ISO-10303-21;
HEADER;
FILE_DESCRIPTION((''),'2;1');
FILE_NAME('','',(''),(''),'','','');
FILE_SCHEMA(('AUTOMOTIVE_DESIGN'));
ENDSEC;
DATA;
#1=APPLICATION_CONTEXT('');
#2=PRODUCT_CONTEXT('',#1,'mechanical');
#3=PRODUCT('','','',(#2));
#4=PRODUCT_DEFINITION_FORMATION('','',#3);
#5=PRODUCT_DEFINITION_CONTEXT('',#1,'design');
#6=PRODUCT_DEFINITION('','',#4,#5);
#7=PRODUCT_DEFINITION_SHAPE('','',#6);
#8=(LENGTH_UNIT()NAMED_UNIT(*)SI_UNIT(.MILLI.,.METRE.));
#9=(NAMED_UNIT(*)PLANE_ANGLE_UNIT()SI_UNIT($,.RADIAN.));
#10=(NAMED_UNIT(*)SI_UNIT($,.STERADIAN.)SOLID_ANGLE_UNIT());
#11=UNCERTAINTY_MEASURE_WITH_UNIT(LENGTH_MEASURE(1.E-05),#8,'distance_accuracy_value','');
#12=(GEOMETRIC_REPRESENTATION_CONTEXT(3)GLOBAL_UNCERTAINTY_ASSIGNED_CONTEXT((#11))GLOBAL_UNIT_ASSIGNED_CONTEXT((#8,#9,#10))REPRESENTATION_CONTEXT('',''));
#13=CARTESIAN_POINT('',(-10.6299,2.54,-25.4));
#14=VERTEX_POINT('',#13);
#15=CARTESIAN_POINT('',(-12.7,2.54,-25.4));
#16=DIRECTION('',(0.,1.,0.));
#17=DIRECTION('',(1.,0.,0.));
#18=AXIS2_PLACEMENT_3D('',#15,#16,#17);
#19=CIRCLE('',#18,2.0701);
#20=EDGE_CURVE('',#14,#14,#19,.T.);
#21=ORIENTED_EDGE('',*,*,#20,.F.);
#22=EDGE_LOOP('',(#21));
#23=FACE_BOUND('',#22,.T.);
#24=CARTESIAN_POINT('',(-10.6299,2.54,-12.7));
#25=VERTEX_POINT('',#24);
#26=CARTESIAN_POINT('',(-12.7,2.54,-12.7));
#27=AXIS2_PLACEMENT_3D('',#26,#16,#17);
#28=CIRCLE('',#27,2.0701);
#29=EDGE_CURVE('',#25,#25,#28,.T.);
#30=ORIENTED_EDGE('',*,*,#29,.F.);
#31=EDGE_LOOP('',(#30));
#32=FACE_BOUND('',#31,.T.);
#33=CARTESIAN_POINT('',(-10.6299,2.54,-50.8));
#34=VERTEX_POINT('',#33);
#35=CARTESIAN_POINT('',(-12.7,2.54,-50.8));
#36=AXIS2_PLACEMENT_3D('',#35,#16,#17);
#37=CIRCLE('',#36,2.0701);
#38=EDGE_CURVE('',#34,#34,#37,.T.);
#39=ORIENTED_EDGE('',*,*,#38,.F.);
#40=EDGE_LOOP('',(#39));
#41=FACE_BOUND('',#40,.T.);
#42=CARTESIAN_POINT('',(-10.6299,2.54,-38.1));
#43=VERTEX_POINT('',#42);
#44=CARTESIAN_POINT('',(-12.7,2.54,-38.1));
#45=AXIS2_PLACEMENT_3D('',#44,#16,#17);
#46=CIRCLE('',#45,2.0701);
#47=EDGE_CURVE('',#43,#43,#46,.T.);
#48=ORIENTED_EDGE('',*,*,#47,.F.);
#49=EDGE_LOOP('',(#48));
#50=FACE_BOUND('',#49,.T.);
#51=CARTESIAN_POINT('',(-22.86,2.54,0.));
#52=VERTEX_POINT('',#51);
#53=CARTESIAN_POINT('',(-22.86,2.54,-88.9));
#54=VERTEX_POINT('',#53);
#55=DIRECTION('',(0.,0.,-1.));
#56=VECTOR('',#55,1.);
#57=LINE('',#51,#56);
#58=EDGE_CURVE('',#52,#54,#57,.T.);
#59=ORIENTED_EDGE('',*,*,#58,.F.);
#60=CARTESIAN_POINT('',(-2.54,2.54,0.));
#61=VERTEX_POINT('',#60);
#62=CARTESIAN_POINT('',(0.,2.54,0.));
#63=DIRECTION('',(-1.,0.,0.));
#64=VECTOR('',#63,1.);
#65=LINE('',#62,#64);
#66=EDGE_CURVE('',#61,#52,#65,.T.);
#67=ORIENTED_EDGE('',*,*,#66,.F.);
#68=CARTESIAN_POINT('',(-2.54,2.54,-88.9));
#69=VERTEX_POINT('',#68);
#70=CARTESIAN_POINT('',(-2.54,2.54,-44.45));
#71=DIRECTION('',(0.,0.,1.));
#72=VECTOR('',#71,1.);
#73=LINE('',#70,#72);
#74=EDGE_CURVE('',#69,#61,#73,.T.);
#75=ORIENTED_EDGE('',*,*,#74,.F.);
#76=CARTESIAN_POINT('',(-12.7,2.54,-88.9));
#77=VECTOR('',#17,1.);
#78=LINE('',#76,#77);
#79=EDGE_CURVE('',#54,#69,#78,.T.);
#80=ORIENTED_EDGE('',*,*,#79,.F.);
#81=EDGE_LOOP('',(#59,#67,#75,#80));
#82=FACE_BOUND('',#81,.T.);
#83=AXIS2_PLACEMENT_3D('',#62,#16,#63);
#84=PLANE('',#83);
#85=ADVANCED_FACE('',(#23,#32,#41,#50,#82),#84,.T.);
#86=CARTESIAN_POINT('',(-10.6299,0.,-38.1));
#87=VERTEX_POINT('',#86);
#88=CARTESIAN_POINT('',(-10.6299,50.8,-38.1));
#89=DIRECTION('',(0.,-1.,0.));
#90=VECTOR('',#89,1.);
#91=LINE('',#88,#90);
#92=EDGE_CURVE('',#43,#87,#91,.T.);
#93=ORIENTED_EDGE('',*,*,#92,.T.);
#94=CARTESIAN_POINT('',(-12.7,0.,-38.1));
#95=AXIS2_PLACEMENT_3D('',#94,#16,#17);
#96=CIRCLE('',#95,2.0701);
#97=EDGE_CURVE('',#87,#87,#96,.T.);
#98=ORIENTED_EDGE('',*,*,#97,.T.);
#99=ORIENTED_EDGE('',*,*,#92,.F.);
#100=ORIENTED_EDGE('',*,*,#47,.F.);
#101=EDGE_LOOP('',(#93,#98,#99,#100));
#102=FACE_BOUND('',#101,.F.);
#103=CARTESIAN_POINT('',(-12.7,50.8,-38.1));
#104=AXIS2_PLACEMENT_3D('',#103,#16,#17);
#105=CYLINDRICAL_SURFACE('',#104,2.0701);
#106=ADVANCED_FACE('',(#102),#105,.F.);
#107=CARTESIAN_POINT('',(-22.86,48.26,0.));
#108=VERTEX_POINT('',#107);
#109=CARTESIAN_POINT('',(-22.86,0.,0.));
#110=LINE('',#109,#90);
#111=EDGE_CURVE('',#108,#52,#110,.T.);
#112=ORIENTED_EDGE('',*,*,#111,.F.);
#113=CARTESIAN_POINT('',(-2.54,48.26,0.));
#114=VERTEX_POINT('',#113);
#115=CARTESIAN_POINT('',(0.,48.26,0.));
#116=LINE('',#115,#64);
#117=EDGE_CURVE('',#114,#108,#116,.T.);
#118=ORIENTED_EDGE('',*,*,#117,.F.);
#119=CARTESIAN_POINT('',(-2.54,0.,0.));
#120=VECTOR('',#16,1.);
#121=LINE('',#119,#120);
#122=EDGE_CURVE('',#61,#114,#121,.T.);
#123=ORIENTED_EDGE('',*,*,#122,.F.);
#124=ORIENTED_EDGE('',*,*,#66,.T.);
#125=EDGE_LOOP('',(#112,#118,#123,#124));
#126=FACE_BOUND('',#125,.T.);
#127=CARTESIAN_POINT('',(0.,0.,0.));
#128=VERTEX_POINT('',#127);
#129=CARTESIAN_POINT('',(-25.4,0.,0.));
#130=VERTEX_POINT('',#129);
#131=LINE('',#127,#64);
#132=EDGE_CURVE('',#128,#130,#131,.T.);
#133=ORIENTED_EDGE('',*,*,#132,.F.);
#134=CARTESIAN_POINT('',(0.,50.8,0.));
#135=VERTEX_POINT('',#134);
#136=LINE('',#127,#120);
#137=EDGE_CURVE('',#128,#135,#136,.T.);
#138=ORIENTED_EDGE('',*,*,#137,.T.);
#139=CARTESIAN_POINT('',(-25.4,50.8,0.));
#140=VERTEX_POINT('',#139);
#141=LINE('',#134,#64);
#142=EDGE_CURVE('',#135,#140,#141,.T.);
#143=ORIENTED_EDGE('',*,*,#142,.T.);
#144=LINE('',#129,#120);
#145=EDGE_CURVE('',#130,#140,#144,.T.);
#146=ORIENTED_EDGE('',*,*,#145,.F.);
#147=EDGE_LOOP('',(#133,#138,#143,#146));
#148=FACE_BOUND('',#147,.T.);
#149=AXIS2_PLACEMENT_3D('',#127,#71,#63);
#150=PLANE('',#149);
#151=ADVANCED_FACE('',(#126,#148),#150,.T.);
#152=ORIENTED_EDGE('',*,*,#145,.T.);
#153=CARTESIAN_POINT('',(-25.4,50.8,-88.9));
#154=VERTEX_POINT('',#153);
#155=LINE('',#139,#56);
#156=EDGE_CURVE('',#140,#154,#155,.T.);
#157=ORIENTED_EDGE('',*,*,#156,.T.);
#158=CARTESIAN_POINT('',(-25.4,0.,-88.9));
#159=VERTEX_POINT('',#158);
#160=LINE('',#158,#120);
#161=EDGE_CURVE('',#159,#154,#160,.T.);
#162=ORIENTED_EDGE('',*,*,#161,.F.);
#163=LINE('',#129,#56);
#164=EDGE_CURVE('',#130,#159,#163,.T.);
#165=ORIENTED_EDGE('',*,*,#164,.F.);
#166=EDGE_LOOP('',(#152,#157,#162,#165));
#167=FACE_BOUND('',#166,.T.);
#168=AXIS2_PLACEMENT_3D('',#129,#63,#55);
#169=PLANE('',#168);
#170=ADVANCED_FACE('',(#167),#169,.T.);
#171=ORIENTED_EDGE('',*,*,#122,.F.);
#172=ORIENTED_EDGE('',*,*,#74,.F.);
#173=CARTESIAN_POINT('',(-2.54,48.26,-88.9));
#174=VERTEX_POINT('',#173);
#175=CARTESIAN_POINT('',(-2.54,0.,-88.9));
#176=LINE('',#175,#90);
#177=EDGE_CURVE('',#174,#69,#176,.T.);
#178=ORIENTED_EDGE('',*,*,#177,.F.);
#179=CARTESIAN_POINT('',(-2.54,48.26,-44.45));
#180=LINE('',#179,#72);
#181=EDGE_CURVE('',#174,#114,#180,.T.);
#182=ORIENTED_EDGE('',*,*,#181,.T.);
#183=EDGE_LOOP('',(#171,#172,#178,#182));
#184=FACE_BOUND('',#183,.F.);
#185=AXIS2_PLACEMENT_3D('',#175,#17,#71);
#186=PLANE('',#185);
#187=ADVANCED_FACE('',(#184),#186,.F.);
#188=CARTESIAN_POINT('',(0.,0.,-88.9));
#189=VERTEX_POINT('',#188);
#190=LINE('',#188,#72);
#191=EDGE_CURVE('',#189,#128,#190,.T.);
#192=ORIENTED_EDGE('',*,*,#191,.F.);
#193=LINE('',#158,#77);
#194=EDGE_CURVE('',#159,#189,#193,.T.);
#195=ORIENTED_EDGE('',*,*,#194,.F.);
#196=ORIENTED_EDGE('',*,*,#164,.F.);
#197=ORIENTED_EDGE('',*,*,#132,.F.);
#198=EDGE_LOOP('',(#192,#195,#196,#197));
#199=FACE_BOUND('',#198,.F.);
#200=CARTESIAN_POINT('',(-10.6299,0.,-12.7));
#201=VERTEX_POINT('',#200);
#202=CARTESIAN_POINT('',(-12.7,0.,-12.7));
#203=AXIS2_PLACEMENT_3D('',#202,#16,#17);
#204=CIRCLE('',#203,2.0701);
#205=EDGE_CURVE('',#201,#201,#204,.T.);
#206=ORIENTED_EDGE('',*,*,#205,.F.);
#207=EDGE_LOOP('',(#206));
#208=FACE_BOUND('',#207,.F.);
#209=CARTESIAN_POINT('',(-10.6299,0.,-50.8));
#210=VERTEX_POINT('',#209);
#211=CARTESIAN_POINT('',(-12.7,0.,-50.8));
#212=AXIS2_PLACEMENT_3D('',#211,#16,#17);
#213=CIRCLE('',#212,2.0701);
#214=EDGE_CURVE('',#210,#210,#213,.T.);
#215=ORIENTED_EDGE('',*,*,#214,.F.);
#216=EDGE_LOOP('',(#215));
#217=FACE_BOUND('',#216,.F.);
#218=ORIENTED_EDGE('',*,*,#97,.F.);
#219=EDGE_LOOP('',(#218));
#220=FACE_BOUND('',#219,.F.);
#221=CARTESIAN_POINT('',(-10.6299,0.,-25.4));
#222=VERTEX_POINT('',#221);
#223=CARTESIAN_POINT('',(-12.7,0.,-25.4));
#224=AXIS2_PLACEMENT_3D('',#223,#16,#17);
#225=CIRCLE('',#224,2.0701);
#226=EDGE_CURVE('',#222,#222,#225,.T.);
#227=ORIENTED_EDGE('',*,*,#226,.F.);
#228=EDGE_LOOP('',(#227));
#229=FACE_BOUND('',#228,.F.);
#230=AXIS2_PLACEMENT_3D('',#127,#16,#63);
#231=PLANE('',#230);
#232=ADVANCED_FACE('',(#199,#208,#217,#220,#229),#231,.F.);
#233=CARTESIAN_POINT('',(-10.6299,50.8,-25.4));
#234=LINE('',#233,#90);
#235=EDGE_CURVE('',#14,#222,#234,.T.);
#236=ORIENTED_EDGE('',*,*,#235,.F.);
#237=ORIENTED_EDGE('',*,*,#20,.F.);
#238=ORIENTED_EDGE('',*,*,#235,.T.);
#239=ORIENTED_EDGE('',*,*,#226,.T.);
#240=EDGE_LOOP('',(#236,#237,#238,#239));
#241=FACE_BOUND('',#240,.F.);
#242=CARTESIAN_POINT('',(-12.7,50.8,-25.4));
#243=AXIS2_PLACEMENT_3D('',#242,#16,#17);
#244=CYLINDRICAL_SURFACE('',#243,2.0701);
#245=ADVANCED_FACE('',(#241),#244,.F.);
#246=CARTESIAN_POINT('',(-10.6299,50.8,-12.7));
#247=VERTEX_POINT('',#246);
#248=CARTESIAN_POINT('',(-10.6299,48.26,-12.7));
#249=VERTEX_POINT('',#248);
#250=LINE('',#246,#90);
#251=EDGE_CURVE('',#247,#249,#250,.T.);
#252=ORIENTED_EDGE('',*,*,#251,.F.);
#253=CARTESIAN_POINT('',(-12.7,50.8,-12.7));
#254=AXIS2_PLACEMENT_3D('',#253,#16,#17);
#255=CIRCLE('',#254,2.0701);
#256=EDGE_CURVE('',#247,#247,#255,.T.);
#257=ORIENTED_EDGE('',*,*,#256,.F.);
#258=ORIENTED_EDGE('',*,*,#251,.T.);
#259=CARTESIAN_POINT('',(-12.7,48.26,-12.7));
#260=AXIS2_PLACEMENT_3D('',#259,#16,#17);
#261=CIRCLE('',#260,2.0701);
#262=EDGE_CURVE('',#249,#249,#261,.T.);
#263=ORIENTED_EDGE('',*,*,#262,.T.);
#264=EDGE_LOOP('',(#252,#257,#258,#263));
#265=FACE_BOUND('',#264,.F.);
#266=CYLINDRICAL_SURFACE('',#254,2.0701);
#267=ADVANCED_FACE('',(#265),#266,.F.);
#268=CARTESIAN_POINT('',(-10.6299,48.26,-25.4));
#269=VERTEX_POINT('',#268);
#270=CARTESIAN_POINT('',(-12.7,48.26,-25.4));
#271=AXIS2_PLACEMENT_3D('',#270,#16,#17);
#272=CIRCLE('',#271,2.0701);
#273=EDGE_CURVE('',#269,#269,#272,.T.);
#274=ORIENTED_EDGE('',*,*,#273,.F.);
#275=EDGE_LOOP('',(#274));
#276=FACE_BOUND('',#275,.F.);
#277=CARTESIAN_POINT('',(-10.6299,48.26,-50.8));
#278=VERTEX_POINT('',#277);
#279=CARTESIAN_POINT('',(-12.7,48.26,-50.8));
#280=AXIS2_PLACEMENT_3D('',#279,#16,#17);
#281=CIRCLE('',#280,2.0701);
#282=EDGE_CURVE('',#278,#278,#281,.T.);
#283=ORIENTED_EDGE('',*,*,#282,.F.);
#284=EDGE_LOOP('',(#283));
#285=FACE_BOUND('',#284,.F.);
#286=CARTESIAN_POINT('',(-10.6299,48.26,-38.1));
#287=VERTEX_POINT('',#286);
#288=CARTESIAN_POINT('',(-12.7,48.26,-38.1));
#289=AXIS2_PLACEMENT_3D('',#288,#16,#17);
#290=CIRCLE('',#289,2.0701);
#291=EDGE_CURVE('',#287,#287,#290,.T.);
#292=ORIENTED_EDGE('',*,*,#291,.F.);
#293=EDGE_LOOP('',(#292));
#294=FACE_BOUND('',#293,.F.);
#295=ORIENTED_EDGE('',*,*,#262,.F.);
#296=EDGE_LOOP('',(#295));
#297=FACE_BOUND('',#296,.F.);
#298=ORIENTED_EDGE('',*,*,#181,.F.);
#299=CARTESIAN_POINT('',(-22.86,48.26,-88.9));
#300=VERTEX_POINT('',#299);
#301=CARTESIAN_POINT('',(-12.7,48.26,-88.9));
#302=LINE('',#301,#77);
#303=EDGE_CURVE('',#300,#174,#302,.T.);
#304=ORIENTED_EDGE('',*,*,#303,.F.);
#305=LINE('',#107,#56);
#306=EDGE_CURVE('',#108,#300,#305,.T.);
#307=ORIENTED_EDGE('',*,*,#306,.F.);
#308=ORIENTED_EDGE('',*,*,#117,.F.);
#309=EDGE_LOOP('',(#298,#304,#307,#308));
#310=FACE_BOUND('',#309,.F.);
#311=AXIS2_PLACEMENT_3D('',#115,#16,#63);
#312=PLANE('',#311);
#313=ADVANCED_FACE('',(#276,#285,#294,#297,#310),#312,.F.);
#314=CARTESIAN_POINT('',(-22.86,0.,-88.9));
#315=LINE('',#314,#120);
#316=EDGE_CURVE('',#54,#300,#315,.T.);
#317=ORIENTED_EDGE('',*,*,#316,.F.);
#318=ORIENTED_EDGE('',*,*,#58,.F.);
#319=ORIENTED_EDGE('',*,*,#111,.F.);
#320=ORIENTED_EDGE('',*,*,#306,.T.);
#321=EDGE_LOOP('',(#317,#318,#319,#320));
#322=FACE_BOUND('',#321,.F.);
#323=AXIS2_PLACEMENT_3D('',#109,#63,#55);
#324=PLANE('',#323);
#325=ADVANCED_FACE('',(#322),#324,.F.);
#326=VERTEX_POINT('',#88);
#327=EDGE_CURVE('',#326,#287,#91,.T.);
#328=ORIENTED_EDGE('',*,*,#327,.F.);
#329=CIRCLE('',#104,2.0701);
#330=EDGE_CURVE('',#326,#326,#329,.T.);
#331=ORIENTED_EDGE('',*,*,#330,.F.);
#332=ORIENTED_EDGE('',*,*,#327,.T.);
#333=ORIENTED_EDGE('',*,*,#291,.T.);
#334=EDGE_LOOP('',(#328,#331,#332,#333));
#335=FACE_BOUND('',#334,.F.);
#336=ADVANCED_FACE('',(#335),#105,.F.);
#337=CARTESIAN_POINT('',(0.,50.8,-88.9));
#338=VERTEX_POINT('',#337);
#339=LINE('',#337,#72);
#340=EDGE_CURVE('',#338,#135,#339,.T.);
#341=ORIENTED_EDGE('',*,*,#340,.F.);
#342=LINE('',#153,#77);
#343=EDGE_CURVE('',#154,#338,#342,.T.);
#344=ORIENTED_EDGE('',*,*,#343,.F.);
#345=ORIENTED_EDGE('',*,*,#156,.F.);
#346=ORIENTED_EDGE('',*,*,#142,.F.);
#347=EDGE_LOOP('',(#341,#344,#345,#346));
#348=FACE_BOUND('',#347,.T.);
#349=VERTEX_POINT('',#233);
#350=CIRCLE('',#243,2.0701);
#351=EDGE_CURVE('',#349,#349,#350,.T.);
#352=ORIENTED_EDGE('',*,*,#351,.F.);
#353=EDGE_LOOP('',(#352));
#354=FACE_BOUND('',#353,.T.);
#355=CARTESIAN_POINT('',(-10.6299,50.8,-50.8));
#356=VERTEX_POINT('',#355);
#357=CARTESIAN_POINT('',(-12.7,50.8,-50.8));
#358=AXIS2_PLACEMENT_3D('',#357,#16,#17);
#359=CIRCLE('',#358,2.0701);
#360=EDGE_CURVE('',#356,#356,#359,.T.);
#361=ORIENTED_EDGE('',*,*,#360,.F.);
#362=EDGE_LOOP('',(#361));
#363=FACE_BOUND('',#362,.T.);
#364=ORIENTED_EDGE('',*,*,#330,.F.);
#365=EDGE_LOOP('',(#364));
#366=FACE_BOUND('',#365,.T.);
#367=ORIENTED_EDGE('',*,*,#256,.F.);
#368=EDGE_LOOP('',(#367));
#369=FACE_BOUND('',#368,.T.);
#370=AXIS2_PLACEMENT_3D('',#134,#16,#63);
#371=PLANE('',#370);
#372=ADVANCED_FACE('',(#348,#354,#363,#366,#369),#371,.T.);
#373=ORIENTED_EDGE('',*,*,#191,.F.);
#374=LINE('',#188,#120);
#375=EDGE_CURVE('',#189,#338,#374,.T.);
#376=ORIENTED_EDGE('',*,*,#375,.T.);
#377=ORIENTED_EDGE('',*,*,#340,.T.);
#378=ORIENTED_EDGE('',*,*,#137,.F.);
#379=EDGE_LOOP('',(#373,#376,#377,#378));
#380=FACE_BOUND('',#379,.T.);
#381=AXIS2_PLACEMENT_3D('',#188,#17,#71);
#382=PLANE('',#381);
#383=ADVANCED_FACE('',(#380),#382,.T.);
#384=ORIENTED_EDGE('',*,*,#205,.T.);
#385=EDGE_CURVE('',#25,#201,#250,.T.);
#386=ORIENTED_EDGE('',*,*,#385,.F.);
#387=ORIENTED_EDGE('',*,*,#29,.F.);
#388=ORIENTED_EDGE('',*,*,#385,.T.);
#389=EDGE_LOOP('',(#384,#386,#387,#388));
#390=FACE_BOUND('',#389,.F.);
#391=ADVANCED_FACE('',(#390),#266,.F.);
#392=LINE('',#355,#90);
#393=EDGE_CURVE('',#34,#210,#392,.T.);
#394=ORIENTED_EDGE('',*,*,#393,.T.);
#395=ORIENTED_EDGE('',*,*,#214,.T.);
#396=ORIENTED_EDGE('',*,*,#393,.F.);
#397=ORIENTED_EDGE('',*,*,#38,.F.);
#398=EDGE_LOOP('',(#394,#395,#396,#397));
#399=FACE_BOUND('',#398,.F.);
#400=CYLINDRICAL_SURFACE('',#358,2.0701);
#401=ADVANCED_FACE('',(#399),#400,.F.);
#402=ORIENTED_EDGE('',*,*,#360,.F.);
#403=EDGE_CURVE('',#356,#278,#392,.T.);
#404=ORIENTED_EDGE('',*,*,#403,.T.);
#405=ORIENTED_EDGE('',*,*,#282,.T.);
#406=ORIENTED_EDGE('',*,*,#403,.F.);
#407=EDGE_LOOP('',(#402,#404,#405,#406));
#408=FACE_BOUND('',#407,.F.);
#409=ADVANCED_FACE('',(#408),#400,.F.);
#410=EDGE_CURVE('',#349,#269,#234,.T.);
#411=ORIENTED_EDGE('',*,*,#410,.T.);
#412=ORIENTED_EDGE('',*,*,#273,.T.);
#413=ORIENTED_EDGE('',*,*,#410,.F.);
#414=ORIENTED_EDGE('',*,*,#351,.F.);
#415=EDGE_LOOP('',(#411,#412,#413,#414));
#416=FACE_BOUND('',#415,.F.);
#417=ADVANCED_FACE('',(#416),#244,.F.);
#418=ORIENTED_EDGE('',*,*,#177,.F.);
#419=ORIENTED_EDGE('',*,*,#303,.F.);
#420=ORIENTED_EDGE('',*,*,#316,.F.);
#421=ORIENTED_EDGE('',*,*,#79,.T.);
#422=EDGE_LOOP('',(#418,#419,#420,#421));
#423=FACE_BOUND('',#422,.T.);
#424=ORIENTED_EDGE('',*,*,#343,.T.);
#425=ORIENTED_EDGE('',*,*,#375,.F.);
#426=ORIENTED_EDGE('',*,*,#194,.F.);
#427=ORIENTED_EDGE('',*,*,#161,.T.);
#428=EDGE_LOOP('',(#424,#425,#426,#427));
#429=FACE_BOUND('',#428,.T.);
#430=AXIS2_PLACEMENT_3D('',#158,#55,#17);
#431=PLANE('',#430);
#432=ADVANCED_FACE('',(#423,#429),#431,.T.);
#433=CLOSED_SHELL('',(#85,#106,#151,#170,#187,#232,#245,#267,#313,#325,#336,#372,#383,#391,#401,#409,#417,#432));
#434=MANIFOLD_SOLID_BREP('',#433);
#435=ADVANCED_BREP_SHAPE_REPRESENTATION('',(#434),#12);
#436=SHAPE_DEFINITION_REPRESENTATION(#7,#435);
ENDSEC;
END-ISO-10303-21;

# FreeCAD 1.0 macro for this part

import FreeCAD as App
import Part
import Sketcher

V = App.Vector
Q = App.Units.Quantity


def faces_at(feature, points):
    """Names of the faces that lie closest to the given points."""
    faces = feature.Shape.Faces
    near = lambda p: min(range(len(faces)), key=lambda i: faces[i].distToShape(Part.Vertex(*p))[0])
    return sorted({f"Face{near(p) + 1}" for p in points})


def add_polygon(sketch, points):
    """Adds a closed chain of lines whose ends are joined by coincident constraints."""
    first, n = sketch.GeometryCount, len(points)
    for a, b in zip(points, points[1:] + points[:1]):
        sketch.addGeometry(Part.LineSegment(App.Vector(*a, 0), App.Vector(*b, 0)), False)
    for i in range(n):
        sketch.addConstraint(Sketcher.Constraint("Coincident", first + i, 2, first + (i + 1) % n, 1))

doc = App.newDocument("Part")
body = doc.addObject("PartDesign::Body", "Body")

sketch1 = body.newObject("Sketcher::SketchObject", "Sketch")
sketch1.AttachmentSupport = (doc.getObject("XZ_Plane"), [""])
sketch1.MapMode = "FlatFace"
add_polygon(sketch1, [(-25, 0), (0, 0), (0, -89), (-25, -89)])
sketch1.addConstraint(Sketcher.Constraint("Horizontal", 0))
sketch1.addConstraint(Sketcher.Constraint("Vertical", 1))
sketch1.addConstraint(Sketcher.Constraint("Horizontal", 2))
sketch1.addConstraint(Sketcher.Constraint("Vertical", 3))
sketch1.addConstraint(Sketcher.Constraint("Coincident", 0, 2, -1, 1))
sketch1.addConstraint(Sketcher.Constraint("DistanceX", 0, 1, 0, 2, Q("1 in")))
sketch1.addConstraint(Sketcher.Constraint("DistanceY", 1, 2, 1, 1, Q("3.5 in")))
pad1 = body.newObject("PartDesign::Pad", "Pad")
pad1.Profile = sketch1
pad1.Length = Q("2 in")
pad1.Reversed = True
doc.recompute()

thickness = body.newObject("PartDesign::Thickness", "Thickness")
thickness.Base = (pad1, faces_at(pad1, [(-16.933, 33.867, 0), (-8.467, 16.933, -88.9)]))
thickness.Value = Q("0.1 in")
thickness.Reversed = True
thickness.Join = "Intersection"

sketch2 = body.newObject("Sketcher::SketchObject", "Sketch001")
sketch2.AttachmentSupport = (doc.getObject("XZ_Plane"), [""])
sketch2.MapMode = "FlatFace"
sketch2.AttachmentOffset = App.Placement(V(0, 0, -2 * 25.4), App.Rotation())
sketch2.addGeometry(Part.Circle(V(-12.7, -12.7, 0), V(0, 0, 1), 2.1), False)
sketch2.addGeometry(Part.Circle(V(-12.7, -25.4, 0), V(0, 0, 1), 2.1), False)
sketch2.addGeometry(Part.Circle(V(-12.7, -38.1, 0), V(0, 0, 1), 2.1), False)
sketch2.addGeometry(Part.Circle(V(-12.7, -50.8, 0), V(0, 0, 1), 2.1), False)
sketch2.addConstraint(Sketcher.Constraint("Equal", 0, 1))
sketch2.addConstraint(Sketcher.Constraint("Equal", 1, 2))
sketch2.addConstraint(Sketcher.Constraint("Equal", 2, 3))
sketch2.addConstraint(Sketcher.Constraint("Vertical", 0, 3, 1, 3))
sketch2.addConstraint(Sketcher.Constraint("Vertical", 1, 3, 2, 3))
sketch2.addConstraint(Sketcher.Constraint("Vertical", 2, 3, 3, 3))
sketch2.addConstraint(Sketcher.Constraint("Diameter", 0, Q("0.163 in")))
sketch2.addConstraint(Sketcher.Constraint("DistanceY", 1, 3, -1, 1, Q("1 in")))
sketch2.addConstraint(Sketcher.Constraint("DistanceY", 2, 3, 0, 3, Q("1 in")))
sketch2.addConstraint(Sketcher.Constraint("DistanceY", 3, 3, 1, 3, Q("1 in")))
sketch2.addConstraint(Sketcher.Constraint("DistanceX", 0, 3, -1, 1, Q("0.5 in")))
sketch2.addConstraint(Sketcher.Constraint("DistanceY", 0, 3, -1, 1, Q("0.5 in")))
pocket1 = body.newObject("PartDesign::Pocket", "Pocket")
pocket1.Profile = sketch2
pocket1.Type = "ThroughAll"
pocket1.Reversed = True

doc.recompute()
